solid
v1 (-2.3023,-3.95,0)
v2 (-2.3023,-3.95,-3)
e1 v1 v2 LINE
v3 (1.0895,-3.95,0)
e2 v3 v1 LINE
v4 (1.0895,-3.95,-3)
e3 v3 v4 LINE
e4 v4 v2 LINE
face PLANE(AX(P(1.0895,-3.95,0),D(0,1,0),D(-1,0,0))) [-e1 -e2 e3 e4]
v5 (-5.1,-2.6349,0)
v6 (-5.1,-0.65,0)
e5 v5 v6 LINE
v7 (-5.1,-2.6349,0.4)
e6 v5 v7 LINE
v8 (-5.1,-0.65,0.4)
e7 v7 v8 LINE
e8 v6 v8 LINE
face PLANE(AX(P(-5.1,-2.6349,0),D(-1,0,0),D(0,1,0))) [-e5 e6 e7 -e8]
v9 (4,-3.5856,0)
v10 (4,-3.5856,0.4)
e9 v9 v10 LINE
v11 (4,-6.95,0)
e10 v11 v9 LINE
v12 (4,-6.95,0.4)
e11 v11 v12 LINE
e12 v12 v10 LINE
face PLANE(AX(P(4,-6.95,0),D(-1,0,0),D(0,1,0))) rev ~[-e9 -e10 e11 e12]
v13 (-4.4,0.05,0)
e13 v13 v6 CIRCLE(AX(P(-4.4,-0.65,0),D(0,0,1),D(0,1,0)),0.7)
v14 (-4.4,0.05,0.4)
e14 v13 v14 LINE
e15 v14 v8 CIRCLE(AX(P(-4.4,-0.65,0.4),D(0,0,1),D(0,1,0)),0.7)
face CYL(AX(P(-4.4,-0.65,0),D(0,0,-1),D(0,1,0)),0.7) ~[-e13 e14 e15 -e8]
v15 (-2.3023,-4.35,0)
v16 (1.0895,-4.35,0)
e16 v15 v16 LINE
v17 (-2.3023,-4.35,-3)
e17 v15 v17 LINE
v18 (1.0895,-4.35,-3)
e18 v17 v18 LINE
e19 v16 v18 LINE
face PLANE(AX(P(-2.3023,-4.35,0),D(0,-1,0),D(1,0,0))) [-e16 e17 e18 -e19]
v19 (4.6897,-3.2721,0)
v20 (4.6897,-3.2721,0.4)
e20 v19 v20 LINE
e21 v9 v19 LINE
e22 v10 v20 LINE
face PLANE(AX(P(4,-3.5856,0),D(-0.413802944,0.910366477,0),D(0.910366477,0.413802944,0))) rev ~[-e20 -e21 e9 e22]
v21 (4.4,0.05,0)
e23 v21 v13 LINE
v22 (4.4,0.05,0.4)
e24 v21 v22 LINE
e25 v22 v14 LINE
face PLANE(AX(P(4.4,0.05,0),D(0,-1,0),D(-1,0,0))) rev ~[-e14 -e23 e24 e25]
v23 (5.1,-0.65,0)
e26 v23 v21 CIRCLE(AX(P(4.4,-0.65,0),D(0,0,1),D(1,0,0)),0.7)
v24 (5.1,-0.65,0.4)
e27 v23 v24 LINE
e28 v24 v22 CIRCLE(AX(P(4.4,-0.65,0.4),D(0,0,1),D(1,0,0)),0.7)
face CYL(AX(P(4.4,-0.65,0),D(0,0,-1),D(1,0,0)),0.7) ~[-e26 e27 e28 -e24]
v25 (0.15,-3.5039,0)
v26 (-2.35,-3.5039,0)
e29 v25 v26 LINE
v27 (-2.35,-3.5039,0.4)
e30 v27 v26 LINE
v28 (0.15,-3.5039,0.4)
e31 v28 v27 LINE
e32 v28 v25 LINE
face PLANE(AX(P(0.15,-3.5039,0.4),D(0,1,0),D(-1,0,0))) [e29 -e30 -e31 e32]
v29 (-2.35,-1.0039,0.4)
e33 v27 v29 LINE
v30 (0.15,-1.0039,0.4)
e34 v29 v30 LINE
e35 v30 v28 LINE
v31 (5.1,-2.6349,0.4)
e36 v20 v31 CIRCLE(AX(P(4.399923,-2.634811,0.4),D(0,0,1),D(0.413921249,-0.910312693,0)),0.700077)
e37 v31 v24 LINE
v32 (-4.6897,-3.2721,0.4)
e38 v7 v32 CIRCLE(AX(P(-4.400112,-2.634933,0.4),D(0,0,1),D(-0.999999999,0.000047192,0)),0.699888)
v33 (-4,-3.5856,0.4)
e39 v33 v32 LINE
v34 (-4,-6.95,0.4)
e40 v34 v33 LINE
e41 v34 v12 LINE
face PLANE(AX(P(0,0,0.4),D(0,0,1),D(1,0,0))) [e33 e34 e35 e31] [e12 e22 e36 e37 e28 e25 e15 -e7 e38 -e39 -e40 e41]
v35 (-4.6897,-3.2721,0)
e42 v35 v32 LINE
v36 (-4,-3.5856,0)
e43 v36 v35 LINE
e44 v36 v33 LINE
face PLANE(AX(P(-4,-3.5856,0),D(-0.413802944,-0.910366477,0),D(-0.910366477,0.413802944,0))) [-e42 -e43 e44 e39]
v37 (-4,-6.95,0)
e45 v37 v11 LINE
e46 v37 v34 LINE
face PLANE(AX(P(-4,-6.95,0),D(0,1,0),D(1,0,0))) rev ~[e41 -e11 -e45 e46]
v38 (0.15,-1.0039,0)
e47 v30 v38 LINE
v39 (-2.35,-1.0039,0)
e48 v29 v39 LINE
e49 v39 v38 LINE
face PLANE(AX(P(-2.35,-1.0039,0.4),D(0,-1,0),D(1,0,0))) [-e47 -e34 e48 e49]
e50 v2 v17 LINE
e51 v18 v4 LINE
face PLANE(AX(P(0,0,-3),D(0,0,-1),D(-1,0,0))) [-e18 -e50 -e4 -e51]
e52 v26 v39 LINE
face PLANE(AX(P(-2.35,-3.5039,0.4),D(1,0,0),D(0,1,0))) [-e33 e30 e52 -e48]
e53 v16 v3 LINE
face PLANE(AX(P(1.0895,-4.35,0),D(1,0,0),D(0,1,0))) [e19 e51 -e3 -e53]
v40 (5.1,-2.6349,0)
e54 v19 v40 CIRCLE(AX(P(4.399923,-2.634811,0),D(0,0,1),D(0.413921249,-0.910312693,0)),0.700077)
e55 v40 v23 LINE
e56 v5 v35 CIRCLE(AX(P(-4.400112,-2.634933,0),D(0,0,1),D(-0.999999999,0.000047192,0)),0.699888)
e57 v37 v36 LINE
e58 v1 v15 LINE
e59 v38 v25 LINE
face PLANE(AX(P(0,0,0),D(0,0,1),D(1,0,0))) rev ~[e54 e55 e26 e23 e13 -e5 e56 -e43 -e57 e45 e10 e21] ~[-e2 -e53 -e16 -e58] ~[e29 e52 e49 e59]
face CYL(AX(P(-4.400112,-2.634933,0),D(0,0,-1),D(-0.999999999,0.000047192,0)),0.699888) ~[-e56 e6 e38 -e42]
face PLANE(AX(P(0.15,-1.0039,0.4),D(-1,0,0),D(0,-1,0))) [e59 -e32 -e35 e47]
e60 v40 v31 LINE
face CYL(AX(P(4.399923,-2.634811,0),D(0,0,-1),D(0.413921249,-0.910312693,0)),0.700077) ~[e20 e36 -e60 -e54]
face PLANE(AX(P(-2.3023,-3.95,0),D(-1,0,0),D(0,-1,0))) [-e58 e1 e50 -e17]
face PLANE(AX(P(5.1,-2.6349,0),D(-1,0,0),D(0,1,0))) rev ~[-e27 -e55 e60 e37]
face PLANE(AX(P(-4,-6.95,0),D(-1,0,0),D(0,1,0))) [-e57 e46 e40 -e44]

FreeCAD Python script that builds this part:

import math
import FreeCAD as App
import Part
import Sketcher
from FreeCAD import Vector
Q = App.Units.Quantity


def add_polygon(sketch, points):
    """Adds a closed chain of lines whose ends are joined by coincident constraints."""
    first, n = sketch.GeometryCount, len(points)
    for a, b in zip(points, points[1:] + points[:1]):
        sketch.addGeometry(Part.LineSegment(App.Vector(*a, 0), App.Vector(*b, 0)), False)
    for i in range(n):
        sketch.addConstraint(Sketcher.Constraint("Coincident", first + i, 2, first + (i + 1) % n, 1))

doc = App.newDocument("Part")
body = doc.addObject("PartDesign::Body", "Body")

sketch1 = body.newObject("Sketcher::SketchObject", "Sketch")
sketch1.AttachmentSupport = (doc.getObject("XY_Plane"), [""])
sketch1.MapMode = "FlatFace"
sketch1.addGeometry([
    Part.LineSegment(Vector(-4, -3.6, 0), Vector(-4, -7, 0)),
    Part.LineSegment(Vector(-4, -7, 0), Vector(4, -7, 0)),
    Part.LineSegment(Vector(4, -7, 0), Vector(4, -3.6, 0)),
    Part.LineSegment(Vector(4, -3.6, 0), Vector(4.7, -3.3, 0)),
    Part.ArcOfCircle(Part.Circle(Vector(4.4, -2.6, 0), Vector(0, 0, 1), 0.7), math.radians(-66), math.radians(0)),
    Part.LineSegment(Vector(5.1, -2.6, 0), Vector(5.1, -0.7, 0)),
    Part.ArcOfCircle(Part.Circle(Vector(4.4, -0.7, 0), Vector(0, 0, 1), 0.7), math.radians(0), math.radians(90)),
    Part.LineSegment(Vector(4.4, 0.1, 0), Vector(-4.4, 0.1, 0)),
    Part.ArcOfCircle(Part.Circle(Vector(-4.4, -0.7, 0), Vector(0, 0, 1), 0.7), math.radians(90), math.radians(180)),
    Part.LineSegment(Vector(-5.1, -0.7, 0), Vector(-5.1, -2.6, 0)),
    Part.ArcOfCircle(Part.Circle(Vector(-4.4, -2.6, 0), Vector(0, 0, 1), 0.7), math.radians(180), math.radians(246)),
    Part.LineSegment(Vector(-4.7, -3.3, 0), Vector(-4, -3.6, 0)),
], False)
sketch1.addConstraint([
    Sketcher.Constraint("Coincident", 0, 2, 1, 1),
    Sketcher.Constraint("Coincident", 1, 2, 2, 1),
    Sketcher.Constraint("Coincident", 2, 2, 3, 1),
    Sketcher.Constraint("Tangent", 3, 2, 4, 1),
    Sketcher.Constraint("Tangent", 4, 2, 5, 1),
    Sketcher.Constraint("Tangent", 5, 2, 6, 1),
    Sketcher.Constraint("Tangent", 6, 2, 7, 1),
    Sketcher.Constraint("Tangent", 7, 2, 8, 1),
    Sketcher.Constraint("Tangent", 8, 2, 9, 1),
    Sketcher.Constraint("Tangent", 9, 2, 10, 1),
    Sketcher.Constraint("Tangent", 10, 2, 11, 1),
    Sketcher.Constraint("Coincident", 11, 2, 0, 1),
    Sketcher.Constraint("Vertical", 0),
    Sketcher.Constraint("Horizontal", 1),
    Sketcher.Constraint("Vertical", 2),
    Sketcher.Constraint("Vertical", 5),
    Sketcher.Constraint("Horizontal", 7),
    Sketcher.Constraint("Vertical", 9),
    Sketcher.Constraint("Equal", 4, 6),
    Sketcher.Constraint("Equal", 6, 8),
    Sketcher.Constraint("Equal", 8, 10),
    Sketcher.Constraint("Symmetric", 4, 3, 10, 3, -2),
    Sketcher.Constraint("Symmetric", 2, 2, 11, 2, -2),
    Sketcher.Constraint("Radius", 4, Q("0.7 mm")),
    Sketcher.Constraint("DistanceX", 1, 1, 1, 2, Q("8 mm")),
    Sketcher.Constraint("DistanceX", 7, 2, 7, 1, Q("8.8 mm")),
    Sketcher.Constraint("DistanceY", 0, 2, 7, 2, Q("7 mm")),
    Sketcher.Constraint("DistanceY", 5, 1, 5, 2, Q("1.985 mm")),
    Sketcher.Constraint("DistanceY", 6, 3, -1, 1, Q("0.65 mm")),
    Sketcher.Constraint("DistanceY", 0, 2, 0, 1, Q("3.3644 mm")),
])
pad1 = body.newObject("PartDesign::Pad", "Pad")
pad1.Profile = sketch1
pad1.Length = 0.4

sketch2 = body.newObject("Sketcher::SketchObject", "Sketch001")
sketch2.AttachmentSupport = (doc.getObject("XY_Plane"), [""])
sketch2.MapMode = "FlatFace"
sketch2.AttachmentOffset = App.Placement(Vector(0, 0, 0.4), App.Rotation())
add_polygon(sketch2, [(-2.4, -3.5), (0.1, -3.5), (0.1, -1), (-2.4, -1)])
sketch2.addConstraint([
    Sketcher.Constraint("Horizontal", 0),
    Sketcher.Constraint("Vertical", 1),
    Sketcher.Constraint("Horizontal", 2),
    Sketcher.Constraint("Vertical", 3),
    Sketcher.Constraint("Equal", 2, 1),
    Sketcher.Constraint("DistanceX", 0, 1, 0, 2, Q("2.5 mm")),
    Sketcher.Constraint("DistanceX", -1, 1, 0, 2, Q("0.15 mm")),
    Sketcher.Constraint("DistanceY", 0, 2, -1, 1, Q("3.504 mm")),
])
pocket1 = body.newObject("PartDesign::Pocket", "Pocket")
pocket1.Profile = sketch2
pocket1.Length = 0.4

sketch3 = body.newObject("Sketcher::SketchObject", "Sketch002")
sketch3.AttachmentSupport = (doc.getObject("XY_Plane"), [""])
sketch3.MapMode = "FlatFace"
add_polygon(sketch3, [(-2.3, -3.95), (1.09, -3.95), (1.09, -4.35), (-2.3, -4.35)])
sketch3.addConstraint([
    Sketcher.Constraint("Horizontal", 0),
    Sketcher.Constraint("Vertical", 1),
    Sketcher.Constraint("Horizontal", 2),
    Sketcher.Constraint("Vertical", 3),
    Sketcher.Constraint("DistanceY", 1, 2, 1, 1, Q("0.4 mm")),
    Sketcher.Constraint("DistanceY", 0, 2, -1, 1, Q("3.95 mm")),
    Sketcher.Constraint("DistanceX", 0, 1, 0, 2, Q("3.3918 mm")),
    Sketcher.Constraint("DistanceX", -1, 1, 0, 2, Q("1.0895 mm")),
])
pad2 = body.newObject("PartDesign::Pad", "Pad001")
pad2.Profile = sketch3
pad2.Length = 3
pad2.Reversed = True

doc.recompute()
